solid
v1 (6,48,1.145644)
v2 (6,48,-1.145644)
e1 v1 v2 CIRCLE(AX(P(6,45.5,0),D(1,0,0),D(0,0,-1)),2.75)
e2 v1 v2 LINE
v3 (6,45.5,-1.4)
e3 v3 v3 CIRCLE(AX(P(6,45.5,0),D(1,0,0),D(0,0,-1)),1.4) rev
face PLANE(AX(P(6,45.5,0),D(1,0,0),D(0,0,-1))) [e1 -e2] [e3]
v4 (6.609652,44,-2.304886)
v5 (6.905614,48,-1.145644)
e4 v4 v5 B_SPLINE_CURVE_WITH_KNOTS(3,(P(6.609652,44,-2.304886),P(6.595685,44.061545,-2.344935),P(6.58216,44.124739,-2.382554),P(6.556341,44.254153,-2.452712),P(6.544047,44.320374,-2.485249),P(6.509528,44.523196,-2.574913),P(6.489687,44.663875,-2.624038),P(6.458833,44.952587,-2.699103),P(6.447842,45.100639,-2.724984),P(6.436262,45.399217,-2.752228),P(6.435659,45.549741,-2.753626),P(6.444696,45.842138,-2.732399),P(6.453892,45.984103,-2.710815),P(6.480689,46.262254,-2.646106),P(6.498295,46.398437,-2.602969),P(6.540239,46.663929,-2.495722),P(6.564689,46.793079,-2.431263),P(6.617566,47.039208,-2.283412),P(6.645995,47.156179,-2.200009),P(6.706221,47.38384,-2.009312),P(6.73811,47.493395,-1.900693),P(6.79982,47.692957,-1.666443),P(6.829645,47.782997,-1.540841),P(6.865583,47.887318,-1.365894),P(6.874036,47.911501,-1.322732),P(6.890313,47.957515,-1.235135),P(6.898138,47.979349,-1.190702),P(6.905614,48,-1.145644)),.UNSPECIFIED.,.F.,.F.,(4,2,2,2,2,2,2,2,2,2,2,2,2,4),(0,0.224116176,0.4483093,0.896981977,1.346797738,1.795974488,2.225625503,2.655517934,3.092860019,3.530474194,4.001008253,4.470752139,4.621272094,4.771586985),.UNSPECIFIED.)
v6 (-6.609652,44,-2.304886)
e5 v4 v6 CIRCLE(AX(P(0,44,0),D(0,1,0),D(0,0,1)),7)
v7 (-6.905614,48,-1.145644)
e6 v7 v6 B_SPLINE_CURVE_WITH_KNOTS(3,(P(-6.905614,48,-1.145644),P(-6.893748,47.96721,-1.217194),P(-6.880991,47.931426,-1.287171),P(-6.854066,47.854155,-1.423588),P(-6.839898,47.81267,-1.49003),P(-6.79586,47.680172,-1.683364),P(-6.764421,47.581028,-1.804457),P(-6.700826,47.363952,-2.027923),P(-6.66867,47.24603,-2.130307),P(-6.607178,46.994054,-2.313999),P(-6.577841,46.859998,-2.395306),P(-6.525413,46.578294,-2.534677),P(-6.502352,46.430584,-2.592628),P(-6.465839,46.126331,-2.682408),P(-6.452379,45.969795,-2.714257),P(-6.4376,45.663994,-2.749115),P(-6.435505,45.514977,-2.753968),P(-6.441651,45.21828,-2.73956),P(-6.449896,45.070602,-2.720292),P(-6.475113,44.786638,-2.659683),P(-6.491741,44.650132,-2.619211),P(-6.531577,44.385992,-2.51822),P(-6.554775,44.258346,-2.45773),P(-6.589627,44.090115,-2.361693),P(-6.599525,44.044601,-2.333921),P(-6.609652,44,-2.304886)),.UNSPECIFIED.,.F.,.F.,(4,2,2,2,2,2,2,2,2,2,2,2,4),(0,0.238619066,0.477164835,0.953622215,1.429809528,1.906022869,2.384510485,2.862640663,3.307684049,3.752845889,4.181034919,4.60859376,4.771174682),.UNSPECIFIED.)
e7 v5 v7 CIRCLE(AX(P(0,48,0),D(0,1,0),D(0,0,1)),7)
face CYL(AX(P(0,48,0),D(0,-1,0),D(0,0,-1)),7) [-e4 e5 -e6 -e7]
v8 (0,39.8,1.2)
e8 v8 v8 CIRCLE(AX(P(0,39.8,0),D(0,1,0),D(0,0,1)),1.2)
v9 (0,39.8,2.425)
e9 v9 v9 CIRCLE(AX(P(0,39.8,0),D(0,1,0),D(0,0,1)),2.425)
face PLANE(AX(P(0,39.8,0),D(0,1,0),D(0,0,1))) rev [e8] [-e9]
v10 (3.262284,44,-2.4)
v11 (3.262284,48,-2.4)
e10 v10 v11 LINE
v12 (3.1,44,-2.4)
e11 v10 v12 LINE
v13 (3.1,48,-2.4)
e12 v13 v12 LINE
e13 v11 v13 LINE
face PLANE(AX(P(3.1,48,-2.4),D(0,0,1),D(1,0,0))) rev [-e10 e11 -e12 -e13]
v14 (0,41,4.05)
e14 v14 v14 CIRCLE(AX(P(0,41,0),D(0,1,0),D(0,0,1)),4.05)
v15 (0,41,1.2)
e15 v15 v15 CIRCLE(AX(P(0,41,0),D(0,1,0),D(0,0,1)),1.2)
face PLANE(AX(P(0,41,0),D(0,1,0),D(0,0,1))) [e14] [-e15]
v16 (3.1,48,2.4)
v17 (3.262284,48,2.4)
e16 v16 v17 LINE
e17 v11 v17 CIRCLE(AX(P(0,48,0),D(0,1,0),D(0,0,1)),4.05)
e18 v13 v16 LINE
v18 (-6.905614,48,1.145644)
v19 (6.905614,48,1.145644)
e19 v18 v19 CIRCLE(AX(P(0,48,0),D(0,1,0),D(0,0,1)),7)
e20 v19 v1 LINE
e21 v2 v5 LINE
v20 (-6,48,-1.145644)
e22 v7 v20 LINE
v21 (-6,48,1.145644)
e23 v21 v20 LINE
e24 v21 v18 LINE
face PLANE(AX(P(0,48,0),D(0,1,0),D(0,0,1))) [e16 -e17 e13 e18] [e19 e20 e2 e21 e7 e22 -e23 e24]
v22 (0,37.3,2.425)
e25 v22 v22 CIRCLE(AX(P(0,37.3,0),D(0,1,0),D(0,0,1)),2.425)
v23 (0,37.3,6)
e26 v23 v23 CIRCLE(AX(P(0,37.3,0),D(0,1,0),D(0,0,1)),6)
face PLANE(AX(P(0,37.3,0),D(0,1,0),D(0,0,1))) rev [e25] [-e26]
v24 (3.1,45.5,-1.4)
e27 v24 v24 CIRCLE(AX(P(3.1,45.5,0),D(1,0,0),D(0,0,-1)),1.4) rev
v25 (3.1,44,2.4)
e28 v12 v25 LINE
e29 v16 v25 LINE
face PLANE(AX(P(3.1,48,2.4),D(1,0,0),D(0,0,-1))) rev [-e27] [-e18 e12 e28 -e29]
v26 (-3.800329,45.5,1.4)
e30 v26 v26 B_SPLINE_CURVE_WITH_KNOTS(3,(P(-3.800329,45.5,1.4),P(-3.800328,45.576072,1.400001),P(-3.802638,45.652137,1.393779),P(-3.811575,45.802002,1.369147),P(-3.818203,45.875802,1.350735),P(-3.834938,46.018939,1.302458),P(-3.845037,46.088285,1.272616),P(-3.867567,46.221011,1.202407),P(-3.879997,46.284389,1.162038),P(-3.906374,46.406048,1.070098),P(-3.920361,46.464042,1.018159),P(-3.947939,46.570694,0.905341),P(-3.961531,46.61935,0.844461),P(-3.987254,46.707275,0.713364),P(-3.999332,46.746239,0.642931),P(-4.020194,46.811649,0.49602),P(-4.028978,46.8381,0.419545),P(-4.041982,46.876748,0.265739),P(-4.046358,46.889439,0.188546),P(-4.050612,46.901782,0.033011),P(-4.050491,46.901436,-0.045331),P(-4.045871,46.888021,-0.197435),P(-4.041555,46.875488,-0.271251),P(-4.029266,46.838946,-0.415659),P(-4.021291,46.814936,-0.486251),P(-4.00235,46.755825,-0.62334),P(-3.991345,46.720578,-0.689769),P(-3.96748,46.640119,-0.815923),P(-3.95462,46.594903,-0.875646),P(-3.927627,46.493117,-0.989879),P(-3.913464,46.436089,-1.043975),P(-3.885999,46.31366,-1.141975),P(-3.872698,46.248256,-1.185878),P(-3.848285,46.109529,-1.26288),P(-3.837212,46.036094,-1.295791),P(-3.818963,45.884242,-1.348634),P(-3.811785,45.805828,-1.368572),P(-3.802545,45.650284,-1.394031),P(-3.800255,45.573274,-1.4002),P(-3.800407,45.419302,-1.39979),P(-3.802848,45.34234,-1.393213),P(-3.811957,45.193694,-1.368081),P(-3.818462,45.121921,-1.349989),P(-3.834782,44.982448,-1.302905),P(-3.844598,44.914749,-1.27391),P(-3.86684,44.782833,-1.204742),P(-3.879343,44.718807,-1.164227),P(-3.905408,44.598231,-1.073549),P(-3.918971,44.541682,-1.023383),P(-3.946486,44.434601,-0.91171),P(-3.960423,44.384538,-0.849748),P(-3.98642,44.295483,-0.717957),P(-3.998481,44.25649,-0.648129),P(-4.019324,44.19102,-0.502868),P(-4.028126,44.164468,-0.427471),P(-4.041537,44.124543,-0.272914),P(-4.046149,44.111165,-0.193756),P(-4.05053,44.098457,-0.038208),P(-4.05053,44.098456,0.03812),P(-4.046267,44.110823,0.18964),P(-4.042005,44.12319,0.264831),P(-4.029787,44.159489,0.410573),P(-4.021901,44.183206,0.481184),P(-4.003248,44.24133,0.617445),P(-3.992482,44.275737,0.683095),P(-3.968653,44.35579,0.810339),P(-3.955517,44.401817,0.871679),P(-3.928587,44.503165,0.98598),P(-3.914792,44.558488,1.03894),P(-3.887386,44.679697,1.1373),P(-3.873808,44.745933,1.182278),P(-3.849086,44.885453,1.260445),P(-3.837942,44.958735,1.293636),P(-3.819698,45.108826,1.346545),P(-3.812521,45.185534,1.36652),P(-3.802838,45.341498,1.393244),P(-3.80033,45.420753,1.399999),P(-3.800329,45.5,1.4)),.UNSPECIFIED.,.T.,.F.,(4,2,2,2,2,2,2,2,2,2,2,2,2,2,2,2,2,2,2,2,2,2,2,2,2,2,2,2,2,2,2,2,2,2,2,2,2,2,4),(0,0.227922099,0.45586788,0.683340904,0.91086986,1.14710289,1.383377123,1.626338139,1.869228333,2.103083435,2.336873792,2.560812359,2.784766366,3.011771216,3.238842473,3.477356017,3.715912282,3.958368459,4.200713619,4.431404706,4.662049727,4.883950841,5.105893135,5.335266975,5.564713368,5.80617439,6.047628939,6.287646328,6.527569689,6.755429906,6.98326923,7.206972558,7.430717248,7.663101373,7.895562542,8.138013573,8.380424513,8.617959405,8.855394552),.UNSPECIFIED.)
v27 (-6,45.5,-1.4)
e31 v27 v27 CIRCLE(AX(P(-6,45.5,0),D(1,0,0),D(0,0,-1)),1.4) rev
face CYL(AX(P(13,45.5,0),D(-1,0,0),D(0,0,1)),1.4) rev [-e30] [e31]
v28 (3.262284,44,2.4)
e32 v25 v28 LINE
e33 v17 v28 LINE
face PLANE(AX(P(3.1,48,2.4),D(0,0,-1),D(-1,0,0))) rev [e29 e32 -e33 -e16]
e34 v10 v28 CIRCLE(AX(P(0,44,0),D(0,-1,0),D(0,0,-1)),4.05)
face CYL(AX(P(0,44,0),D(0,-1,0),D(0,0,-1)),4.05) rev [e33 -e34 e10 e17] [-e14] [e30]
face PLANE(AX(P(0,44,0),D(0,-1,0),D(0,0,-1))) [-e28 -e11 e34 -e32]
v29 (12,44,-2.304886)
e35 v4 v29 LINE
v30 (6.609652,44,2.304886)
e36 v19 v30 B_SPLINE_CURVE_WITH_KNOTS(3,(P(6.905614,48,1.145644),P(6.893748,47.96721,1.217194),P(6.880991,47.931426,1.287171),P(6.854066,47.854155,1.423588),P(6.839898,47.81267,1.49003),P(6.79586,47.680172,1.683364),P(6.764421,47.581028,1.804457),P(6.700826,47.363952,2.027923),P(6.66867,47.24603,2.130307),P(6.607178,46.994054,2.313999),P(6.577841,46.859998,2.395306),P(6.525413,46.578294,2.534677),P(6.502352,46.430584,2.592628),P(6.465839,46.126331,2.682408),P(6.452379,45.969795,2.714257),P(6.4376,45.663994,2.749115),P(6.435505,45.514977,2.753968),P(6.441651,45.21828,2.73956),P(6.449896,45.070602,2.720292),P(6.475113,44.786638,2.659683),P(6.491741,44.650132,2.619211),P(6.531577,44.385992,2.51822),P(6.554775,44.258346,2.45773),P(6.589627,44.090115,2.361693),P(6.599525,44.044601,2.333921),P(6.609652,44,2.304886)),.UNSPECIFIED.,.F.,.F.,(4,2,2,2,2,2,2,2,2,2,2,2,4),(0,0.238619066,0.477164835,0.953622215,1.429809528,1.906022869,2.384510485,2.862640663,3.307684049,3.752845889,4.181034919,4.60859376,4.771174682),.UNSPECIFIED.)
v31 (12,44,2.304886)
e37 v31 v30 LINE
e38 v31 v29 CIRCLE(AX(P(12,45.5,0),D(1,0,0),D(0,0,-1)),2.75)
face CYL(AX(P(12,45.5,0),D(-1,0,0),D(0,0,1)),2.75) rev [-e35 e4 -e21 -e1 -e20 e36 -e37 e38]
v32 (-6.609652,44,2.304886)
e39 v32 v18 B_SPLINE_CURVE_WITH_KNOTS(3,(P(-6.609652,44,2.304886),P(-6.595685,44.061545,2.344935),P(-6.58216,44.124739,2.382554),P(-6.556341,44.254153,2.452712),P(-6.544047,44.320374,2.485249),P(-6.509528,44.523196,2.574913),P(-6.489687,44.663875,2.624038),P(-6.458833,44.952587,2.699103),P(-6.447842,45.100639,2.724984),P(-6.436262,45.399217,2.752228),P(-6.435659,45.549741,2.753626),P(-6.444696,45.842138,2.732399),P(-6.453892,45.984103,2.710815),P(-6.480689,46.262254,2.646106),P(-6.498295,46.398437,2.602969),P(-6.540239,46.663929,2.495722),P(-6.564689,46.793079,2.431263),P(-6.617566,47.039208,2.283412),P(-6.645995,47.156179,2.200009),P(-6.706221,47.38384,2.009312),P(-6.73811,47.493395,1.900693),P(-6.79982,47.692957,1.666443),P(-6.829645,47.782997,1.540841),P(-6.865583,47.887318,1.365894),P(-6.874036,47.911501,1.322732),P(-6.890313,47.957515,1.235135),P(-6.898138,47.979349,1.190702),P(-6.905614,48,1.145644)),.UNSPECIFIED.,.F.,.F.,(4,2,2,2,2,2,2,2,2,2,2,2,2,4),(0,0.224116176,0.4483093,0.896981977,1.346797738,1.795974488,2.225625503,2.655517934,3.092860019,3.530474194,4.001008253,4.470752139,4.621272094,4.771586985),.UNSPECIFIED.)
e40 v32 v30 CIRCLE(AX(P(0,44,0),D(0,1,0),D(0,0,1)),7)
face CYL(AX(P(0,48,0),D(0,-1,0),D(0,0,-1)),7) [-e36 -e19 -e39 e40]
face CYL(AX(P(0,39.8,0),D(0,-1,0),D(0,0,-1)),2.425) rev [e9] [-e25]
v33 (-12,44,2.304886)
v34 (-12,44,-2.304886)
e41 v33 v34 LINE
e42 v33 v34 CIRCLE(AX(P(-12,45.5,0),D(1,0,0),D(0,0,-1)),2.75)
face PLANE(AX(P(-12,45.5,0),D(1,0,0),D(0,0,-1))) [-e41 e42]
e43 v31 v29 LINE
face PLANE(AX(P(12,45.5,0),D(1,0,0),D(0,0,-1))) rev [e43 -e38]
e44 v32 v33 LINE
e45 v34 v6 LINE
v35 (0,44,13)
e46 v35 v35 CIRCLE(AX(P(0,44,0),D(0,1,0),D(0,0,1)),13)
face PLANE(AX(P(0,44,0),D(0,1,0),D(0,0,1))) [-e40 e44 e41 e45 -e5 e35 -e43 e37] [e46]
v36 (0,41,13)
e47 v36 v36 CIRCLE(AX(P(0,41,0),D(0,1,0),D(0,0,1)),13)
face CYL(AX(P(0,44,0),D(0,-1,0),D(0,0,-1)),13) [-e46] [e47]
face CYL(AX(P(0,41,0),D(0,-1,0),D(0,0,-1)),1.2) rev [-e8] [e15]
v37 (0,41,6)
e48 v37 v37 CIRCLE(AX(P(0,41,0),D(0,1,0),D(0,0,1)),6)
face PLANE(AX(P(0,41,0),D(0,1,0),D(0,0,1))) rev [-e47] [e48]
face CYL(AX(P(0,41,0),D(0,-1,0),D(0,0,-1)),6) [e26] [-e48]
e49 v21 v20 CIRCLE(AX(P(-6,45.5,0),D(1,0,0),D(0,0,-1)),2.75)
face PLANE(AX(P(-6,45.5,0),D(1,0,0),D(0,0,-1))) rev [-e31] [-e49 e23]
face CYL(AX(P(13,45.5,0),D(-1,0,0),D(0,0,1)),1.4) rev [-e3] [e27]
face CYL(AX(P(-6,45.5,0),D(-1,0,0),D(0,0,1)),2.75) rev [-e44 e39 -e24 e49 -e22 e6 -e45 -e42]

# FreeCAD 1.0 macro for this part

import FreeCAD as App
import Part
import Sketcher
from FreeCAD import Vector
Q = App.Units.Quantity


def add_polygon(sketch, points):
    """Adds a closed chain of lines whose ends are joined by coincident constraints."""
    first, n = sketch.GeometryCount, len(points)
    for a, b in zip(points, points[1:] + points[:1]):
        sketch.addGeometry(Part.LineSegment(App.Vector(*a, 0), App.Vector(*b, 0)), False)
    for i in range(n):
        sketch.addConstraint(Sketcher.Constraint("Coincident", first + i, 2, first + (i + 1) % n, 1))

doc = App.newDocument("Part")
body = doc.addObject("PartDesign::Body", "Body")

sketch1 = body.newObject("Sketcher::SketchObject", "Sketch")
sketch1.AttachmentSupport = (doc.getObject("XZ_Plane"), [""])
sketch1.MapMode = "FlatFace"
sketch1.AttachmentOffset = App.Placement(Vector(0, 0, -41), App.Rotation())
sketch1.addGeometry(Part.Circle(Vector(0, 0, 0), Vector(0, 0, 1), 13), False)
sketch1.addGeometry(Part.Circle(Vector(0, 0, 0), Vector(0, 0, 1), 4), False)
sketch1.addConstraint(Sketcher.Constraint("Coincident", 0, 3, -1, 1))
sketch1.addConstraint(Sketcher.Constraint("Coincident", 1, 3, -1, 1))
sketch1.addConstraint(Sketcher.Constraint("Diameter", 0, Q("26 mm")))
sketch1.addConstraint(Sketcher.Constraint("Diameter", 1, Q("8.1 mm")))
pad1 = body.newObject("PartDesign::Pad", "Pad")
pad1.Profile = sketch1
pad1.Length = 3
pad1.Reversed = True

sketch2 = body.newObject("Sketcher::SketchObject", "Sketch001")
sketch2.AttachmentSupport = (doc.getObject("XZ_Plane"), [""])
sketch2.MapMode = "FlatFace"
sketch2.AttachmentOffset = App.Placement(Vector(0, 0, -44), App.Rotation())
sketch2.addGeometry(Part.Circle(Vector(0, 0, 0), Vector(0, 0, 1), 7), False)
sketch2.addGeometry(Part.Circle(Vector(0, 0, 0), Vector(0, 0, 1), 4), False)
sketch2.addConstraint(Sketcher.Constraint("Coincident", 0, 3, -1, 1))
sketch2.addConstraint(Sketcher.Constraint("Coincident", 1, 3, -1, 1))
sketch2.addConstraint(Sketcher.Constraint("Diameter", 0, Q("14 mm")))
sketch2.addConstraint(Sketcher.Constraint("Diameter", 1, Q("8.1 mm")))
pad2 = body.newObject("PartDesign::Pad", "Pad001")
pad2.Profile = sketch2
pad2.Length = 4
pad2.Reversed = True

sketch3 = body.newObject("Sketcher::SketchObject", "Sketch002")
sketch3.AttachmentSupport = (doc.getObject("XZ_Plane"), [""])
sketch3.MapMode = "FlatFace"
sketch3.AttachmentOffset = App.Placement(Vector(0, 0, -44), App.Rotation())
add_polygon(sketch3, [(3.1, -2.4), (3.1, 2.4), (6, 2.4), (6, -2.4)])
sketch3.addConstraint(Sketcher.Constraint("Vertical", 0))
sketch3.addConstraint(Sketcher.Constraint("Horizontal", 1))
sketch3.addConstraint(Sketcher.Constraint("Vertical", 2))
sketch3.addConstraint(Sketcher.Constraint("Horizontal", 3))
sketch3.addConstraint(Sketcher.Constraint("DistanceX", 1, 1, 1, 2, Q("2.9 mm")))
sketch3.addConstraint(Sketcher.Constraint("DistanceY", 0, 1, 0, 2, Q("4.8 mm")))
sketch3.addConstraint(Sketcher.Constraint("DistanceX", -1, 1, 1, 2, Q("6 mm")))
sketch3.addConstraint(Sketcher.Constraint("DistanceY", -1, 1, 0, 2, Q("2.4 mm")))
pad3 = body.newObject("PartDesign::Pad", "Pad002")
pad3.Profile = sketch3
pad3.Length = 4
pad3.Reversed = True

sketch4 = body.newObject("Sketcher::SketchObject", "Sketch003")
sketch4.AttachmentSupport = (doc.getObject("YZ_Plane"), [""])
sketch4.MapMode = "FlatFace"
sketch4.AttachmentOffset = App.Placement(Vector(0, 0, -10), App.Rotation())
sketch4.addGeometry(Part.Circle(Vector(45.5, 0, 0), Vector(0, 0, 1), 1.1), False)
sketch4.addConstraint(Sketcher.Constraint("PointOnObject", 0, 3, -1))
sketch4.addConstraint(Sketcher.Constraint("Diameter", 0, Q("2.2 mm")))
sketch4.addConstraint(Sketcher.Constraint("DistanceX", -1, 1, 0, 3, Q("45.5 mm")))
pocket1 = body.newObject("PartDesign::Pocket", "Pocket")
pocket1.Profile = sketch4
pocket1.Type = "ThroughAll"
pocket1.Reversed = True

sketch5 = body.newObject("Sketcher::SketchObject", "Sketch004")
sketch5.AttachmentSupport = (doc.getObject("YZ_Plane"), [""])
sketch5.MapMode = "FlatFace"
sketch5.AttachmentOffset = App.Placement(Vector(0, 0, -12), App.Rotation())
sketch5.addGeometry(Part.Circle(Vector(45.5, 0, 0), Vector(0, 0, 1), 2.8), False)
sketch5.addConstraint(Sketcher.Constraint("PointOnObject", 0, 3, -1))
sketch5.addConstraint(Sketcher.Constraint("Diameter", 0, Q("5.5 mm")))
sketch5.addConstraint(Sketcher.Constraint("DistanceX", -1, 1, 0, 3, Q("45.5 mm")))
pocket2 = body.newObject("PartDesign::Pocket", "Pocket001")
pocket2.Profile = sketch5
pocket2.Length = 6
pocket2.Reversed = True

sketch6 = body.newObject("Sketcher::SketchObject", "Sketch005")
sketch6.AttachmentSupport = (doc.getObject("YZ_Plane"), [""])
sketch6.MapMode = "FlatFace"
sketch6.AttachmentOffset = App.Placement(Vector(0, 0, 6), App.Rotation())
sketch6.addGeometry(Part.Circle(Vector(45.5, 0, 0), Vector(0, 0, 1), 2.8), False)
sketch6.addConstraint(Sketcher.Constraint("PointOnObject", 0, 3, -1))
sketch6.addConstraint(Sketcher.Constraint("Diameter", 0, Q("5.5 mm")))
sketch6.addConstraint(Sketcher.Constraint("DistanceX", -1, 1, 0, 3, Q("45.5 mm")))
pocket3 = body.newObject("PartDesign::Pocket", "Pocket002")
pocket3.Profile = sketch6
pocket3.Length = 6
pocket3.Reversed = True

sketch7 = body.newObject("Sketcher::SketchObject", "Sketch006")
sketch7.AttachmentSupport = (doc.getObject("XZ_Plane"), [""])
sketch7.MapMode = "FlatFace"
sketch7.AttachmentOffset = App.Placement(Vector(0, 0, -37.3), App.Rotation())
sketch7.addGeometry(Part.Circle(Vector(0, 0, 0), Vector(0, 0, 1), 6), False)
sketch7.addConstraint(Sketcher.Constraint("Coincident", 0, 3, -1, 1))
sketch7.addConstraint(Sketcher.Constraint("Diameter", 0, Q("12 mm")))
pad4 = body.newObject("PartDesign::Pad", "Pad003")
pad4.Profile = sketch7
pad4.Length = 3.7
pad4.Reversed = True

sketch8 = body.newObject("Sketcher::SketchObject", "Sketch007")
sketch8.AttachmentSupport = (doc.getObject("XZ_Plane"), [""])
sketch8.MapMode = "FlatFace"
sketch8.AttachmentOffset = App.Placement(Vector(0, 0, -37.3), App.Rotation())
sketch8.addGeometry(Part.Circle(Vector(0, 0, 0), Vector(0, 0, 1), 2.4), False)
sketch8.addConstraint(Sketcher.Constraint("Coincident", 0, 3, -1, 1))
sketch8.addConstraint(Sketcher.Constraint("Diameter", 0, Q("4.85 mm")))
pocket4 = body.newObject("PartDesign::Pocket", "Pocket003")
pocket4.Profile = sketch8
pocket4.Length = 2.5

sketch9 = body.newObject("Sketcher::SketchObject", "Sketch008")
sketch9.AttachmentSupport = (doc.getObject("XZ_Plane"), [""])
sketch9.MapMode = "FlatFace"
sketch9.AttachmentOffset = App.Placement(Vector(0, 0, -39.8), App.Rotation())
sketch9.addGeometry(Part.Circle(Vector(0, 0, 0), Vector(0, 0, 1), 1.2), False)
sketch9.addConstraint(Sketcher.Constraint("Coincident", 0, 3, -1, 1))
sketch9.addConstraint(Sketcher.Constraint("Diameter", 0, Q("2.4 mm")))
pocket5 = body.newObject("PartDesign::Pocket", "Pocket004")
pocket5.Profile = sketch9
pocket5.Length = 1.2

sketch10 = body.newObject("Sketcher::SketchObject", "Sketch009")
sketch10.AttachmentSupport = (doc.getObject("YZ_Plane"), [""])
sketch10.MapMode = "FlatFace"
sketch10.AttachmentOffset = App.Placement(Vector(0, 0, -10), App.Rotation())
sketch10.addGeometry(Part.Circle(Vector(45.5, 0, 0), Vector(0, 0, 1), 1.4), False)
sketch10.addConstraint(Sketcher.Constraint("PointOnObject", 0, 3, -1))
sketch10.addConstraint(Sketcher.Constraint("Diameter", 0, Q("2.8 mm")))
sketch10.addConstraint(Sketcher.Constraint("DistanceX", -1, 1, 0, 3, Q("45.5 mm")))
pocket6 = body.newObject("PartDesign::Pocket", "Pocket005")
pocket6.Profile = sketch10
pocket6.Type = "ThroughAll"
pocket6.Reversed = True

doc.recompute()
